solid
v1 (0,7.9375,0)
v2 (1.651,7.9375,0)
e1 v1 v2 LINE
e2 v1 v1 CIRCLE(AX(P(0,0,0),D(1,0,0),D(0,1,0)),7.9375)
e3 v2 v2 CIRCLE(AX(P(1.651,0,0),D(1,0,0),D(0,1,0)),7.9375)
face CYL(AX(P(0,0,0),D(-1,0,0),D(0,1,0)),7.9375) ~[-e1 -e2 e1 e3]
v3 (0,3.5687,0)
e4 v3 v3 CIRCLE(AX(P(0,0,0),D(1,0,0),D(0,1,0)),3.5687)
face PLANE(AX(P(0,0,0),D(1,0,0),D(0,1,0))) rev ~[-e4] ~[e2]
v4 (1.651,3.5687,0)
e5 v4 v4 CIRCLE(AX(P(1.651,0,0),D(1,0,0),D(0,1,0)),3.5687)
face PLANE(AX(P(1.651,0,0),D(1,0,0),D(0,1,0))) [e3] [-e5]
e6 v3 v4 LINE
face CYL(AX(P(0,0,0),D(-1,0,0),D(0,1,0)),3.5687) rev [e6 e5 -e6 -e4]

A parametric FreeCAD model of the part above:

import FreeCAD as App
import Part
import Sketcher
Q = App.Units.Quantity

doc = App.newDocument("Part")
params = doc.addObject("Spreadsheet::Sheet", "Params")
for row, (alias, value) in enumerate([
    ("sketch1_diameter", "0.625 in"),
    ("sketch1_diameter2", "0.281 in"),
    ("pad1_length", "0.065 in"),
], start=1):
    params.set(f"A{row}", alias)
    params.set(f"B{row}", "=" + value)
    params.setAlias(f"B{row}", alias)

body = doc.addObject("PartDesign::Body", "Body")

# Sketch on YZ plane
sketch1 = body.newObject("Sketcher::SketchObject", "Sketch")
sketch1.AttachmentSupport = (doc.getObject("YZ_Plane"), [""])
sketch1.MapMode = "FlatFace"
sketch1.addGeometry([
    Part.Circle(App.Vector(0, 0, 0), App.Vector(0, 0, 1), 7.9),
    Part.Circle(App.Vector(0, 0, 0), App.Vector(0, 0, 1), 3.6),
], False)
sketch1.addConstraint([
    Sketcher.Constraint("Coincident", 0, 3, -1, 1),
    Sketcher.Constraint("Coincident", 1, 3, -1, 1),
    Sketcher.Constraint("Diameter", 0, Q("0.625 in")),
    Sketcher.Constraint("Diameter", 1, Q("0.281 in")),
])
sketch1.setExpression("Constraints[2]", "Params.sketch1_diameter")
sketch1.setExpression("Constraints[3]", "Params.sketch1_diameter2")
pad1 = body.newObject("PartDesign::Pad", "Pad")
pad1.Profile = sketch1
pad1.setExpression("Length", "Params.pad1_length")

doc.recompute()
